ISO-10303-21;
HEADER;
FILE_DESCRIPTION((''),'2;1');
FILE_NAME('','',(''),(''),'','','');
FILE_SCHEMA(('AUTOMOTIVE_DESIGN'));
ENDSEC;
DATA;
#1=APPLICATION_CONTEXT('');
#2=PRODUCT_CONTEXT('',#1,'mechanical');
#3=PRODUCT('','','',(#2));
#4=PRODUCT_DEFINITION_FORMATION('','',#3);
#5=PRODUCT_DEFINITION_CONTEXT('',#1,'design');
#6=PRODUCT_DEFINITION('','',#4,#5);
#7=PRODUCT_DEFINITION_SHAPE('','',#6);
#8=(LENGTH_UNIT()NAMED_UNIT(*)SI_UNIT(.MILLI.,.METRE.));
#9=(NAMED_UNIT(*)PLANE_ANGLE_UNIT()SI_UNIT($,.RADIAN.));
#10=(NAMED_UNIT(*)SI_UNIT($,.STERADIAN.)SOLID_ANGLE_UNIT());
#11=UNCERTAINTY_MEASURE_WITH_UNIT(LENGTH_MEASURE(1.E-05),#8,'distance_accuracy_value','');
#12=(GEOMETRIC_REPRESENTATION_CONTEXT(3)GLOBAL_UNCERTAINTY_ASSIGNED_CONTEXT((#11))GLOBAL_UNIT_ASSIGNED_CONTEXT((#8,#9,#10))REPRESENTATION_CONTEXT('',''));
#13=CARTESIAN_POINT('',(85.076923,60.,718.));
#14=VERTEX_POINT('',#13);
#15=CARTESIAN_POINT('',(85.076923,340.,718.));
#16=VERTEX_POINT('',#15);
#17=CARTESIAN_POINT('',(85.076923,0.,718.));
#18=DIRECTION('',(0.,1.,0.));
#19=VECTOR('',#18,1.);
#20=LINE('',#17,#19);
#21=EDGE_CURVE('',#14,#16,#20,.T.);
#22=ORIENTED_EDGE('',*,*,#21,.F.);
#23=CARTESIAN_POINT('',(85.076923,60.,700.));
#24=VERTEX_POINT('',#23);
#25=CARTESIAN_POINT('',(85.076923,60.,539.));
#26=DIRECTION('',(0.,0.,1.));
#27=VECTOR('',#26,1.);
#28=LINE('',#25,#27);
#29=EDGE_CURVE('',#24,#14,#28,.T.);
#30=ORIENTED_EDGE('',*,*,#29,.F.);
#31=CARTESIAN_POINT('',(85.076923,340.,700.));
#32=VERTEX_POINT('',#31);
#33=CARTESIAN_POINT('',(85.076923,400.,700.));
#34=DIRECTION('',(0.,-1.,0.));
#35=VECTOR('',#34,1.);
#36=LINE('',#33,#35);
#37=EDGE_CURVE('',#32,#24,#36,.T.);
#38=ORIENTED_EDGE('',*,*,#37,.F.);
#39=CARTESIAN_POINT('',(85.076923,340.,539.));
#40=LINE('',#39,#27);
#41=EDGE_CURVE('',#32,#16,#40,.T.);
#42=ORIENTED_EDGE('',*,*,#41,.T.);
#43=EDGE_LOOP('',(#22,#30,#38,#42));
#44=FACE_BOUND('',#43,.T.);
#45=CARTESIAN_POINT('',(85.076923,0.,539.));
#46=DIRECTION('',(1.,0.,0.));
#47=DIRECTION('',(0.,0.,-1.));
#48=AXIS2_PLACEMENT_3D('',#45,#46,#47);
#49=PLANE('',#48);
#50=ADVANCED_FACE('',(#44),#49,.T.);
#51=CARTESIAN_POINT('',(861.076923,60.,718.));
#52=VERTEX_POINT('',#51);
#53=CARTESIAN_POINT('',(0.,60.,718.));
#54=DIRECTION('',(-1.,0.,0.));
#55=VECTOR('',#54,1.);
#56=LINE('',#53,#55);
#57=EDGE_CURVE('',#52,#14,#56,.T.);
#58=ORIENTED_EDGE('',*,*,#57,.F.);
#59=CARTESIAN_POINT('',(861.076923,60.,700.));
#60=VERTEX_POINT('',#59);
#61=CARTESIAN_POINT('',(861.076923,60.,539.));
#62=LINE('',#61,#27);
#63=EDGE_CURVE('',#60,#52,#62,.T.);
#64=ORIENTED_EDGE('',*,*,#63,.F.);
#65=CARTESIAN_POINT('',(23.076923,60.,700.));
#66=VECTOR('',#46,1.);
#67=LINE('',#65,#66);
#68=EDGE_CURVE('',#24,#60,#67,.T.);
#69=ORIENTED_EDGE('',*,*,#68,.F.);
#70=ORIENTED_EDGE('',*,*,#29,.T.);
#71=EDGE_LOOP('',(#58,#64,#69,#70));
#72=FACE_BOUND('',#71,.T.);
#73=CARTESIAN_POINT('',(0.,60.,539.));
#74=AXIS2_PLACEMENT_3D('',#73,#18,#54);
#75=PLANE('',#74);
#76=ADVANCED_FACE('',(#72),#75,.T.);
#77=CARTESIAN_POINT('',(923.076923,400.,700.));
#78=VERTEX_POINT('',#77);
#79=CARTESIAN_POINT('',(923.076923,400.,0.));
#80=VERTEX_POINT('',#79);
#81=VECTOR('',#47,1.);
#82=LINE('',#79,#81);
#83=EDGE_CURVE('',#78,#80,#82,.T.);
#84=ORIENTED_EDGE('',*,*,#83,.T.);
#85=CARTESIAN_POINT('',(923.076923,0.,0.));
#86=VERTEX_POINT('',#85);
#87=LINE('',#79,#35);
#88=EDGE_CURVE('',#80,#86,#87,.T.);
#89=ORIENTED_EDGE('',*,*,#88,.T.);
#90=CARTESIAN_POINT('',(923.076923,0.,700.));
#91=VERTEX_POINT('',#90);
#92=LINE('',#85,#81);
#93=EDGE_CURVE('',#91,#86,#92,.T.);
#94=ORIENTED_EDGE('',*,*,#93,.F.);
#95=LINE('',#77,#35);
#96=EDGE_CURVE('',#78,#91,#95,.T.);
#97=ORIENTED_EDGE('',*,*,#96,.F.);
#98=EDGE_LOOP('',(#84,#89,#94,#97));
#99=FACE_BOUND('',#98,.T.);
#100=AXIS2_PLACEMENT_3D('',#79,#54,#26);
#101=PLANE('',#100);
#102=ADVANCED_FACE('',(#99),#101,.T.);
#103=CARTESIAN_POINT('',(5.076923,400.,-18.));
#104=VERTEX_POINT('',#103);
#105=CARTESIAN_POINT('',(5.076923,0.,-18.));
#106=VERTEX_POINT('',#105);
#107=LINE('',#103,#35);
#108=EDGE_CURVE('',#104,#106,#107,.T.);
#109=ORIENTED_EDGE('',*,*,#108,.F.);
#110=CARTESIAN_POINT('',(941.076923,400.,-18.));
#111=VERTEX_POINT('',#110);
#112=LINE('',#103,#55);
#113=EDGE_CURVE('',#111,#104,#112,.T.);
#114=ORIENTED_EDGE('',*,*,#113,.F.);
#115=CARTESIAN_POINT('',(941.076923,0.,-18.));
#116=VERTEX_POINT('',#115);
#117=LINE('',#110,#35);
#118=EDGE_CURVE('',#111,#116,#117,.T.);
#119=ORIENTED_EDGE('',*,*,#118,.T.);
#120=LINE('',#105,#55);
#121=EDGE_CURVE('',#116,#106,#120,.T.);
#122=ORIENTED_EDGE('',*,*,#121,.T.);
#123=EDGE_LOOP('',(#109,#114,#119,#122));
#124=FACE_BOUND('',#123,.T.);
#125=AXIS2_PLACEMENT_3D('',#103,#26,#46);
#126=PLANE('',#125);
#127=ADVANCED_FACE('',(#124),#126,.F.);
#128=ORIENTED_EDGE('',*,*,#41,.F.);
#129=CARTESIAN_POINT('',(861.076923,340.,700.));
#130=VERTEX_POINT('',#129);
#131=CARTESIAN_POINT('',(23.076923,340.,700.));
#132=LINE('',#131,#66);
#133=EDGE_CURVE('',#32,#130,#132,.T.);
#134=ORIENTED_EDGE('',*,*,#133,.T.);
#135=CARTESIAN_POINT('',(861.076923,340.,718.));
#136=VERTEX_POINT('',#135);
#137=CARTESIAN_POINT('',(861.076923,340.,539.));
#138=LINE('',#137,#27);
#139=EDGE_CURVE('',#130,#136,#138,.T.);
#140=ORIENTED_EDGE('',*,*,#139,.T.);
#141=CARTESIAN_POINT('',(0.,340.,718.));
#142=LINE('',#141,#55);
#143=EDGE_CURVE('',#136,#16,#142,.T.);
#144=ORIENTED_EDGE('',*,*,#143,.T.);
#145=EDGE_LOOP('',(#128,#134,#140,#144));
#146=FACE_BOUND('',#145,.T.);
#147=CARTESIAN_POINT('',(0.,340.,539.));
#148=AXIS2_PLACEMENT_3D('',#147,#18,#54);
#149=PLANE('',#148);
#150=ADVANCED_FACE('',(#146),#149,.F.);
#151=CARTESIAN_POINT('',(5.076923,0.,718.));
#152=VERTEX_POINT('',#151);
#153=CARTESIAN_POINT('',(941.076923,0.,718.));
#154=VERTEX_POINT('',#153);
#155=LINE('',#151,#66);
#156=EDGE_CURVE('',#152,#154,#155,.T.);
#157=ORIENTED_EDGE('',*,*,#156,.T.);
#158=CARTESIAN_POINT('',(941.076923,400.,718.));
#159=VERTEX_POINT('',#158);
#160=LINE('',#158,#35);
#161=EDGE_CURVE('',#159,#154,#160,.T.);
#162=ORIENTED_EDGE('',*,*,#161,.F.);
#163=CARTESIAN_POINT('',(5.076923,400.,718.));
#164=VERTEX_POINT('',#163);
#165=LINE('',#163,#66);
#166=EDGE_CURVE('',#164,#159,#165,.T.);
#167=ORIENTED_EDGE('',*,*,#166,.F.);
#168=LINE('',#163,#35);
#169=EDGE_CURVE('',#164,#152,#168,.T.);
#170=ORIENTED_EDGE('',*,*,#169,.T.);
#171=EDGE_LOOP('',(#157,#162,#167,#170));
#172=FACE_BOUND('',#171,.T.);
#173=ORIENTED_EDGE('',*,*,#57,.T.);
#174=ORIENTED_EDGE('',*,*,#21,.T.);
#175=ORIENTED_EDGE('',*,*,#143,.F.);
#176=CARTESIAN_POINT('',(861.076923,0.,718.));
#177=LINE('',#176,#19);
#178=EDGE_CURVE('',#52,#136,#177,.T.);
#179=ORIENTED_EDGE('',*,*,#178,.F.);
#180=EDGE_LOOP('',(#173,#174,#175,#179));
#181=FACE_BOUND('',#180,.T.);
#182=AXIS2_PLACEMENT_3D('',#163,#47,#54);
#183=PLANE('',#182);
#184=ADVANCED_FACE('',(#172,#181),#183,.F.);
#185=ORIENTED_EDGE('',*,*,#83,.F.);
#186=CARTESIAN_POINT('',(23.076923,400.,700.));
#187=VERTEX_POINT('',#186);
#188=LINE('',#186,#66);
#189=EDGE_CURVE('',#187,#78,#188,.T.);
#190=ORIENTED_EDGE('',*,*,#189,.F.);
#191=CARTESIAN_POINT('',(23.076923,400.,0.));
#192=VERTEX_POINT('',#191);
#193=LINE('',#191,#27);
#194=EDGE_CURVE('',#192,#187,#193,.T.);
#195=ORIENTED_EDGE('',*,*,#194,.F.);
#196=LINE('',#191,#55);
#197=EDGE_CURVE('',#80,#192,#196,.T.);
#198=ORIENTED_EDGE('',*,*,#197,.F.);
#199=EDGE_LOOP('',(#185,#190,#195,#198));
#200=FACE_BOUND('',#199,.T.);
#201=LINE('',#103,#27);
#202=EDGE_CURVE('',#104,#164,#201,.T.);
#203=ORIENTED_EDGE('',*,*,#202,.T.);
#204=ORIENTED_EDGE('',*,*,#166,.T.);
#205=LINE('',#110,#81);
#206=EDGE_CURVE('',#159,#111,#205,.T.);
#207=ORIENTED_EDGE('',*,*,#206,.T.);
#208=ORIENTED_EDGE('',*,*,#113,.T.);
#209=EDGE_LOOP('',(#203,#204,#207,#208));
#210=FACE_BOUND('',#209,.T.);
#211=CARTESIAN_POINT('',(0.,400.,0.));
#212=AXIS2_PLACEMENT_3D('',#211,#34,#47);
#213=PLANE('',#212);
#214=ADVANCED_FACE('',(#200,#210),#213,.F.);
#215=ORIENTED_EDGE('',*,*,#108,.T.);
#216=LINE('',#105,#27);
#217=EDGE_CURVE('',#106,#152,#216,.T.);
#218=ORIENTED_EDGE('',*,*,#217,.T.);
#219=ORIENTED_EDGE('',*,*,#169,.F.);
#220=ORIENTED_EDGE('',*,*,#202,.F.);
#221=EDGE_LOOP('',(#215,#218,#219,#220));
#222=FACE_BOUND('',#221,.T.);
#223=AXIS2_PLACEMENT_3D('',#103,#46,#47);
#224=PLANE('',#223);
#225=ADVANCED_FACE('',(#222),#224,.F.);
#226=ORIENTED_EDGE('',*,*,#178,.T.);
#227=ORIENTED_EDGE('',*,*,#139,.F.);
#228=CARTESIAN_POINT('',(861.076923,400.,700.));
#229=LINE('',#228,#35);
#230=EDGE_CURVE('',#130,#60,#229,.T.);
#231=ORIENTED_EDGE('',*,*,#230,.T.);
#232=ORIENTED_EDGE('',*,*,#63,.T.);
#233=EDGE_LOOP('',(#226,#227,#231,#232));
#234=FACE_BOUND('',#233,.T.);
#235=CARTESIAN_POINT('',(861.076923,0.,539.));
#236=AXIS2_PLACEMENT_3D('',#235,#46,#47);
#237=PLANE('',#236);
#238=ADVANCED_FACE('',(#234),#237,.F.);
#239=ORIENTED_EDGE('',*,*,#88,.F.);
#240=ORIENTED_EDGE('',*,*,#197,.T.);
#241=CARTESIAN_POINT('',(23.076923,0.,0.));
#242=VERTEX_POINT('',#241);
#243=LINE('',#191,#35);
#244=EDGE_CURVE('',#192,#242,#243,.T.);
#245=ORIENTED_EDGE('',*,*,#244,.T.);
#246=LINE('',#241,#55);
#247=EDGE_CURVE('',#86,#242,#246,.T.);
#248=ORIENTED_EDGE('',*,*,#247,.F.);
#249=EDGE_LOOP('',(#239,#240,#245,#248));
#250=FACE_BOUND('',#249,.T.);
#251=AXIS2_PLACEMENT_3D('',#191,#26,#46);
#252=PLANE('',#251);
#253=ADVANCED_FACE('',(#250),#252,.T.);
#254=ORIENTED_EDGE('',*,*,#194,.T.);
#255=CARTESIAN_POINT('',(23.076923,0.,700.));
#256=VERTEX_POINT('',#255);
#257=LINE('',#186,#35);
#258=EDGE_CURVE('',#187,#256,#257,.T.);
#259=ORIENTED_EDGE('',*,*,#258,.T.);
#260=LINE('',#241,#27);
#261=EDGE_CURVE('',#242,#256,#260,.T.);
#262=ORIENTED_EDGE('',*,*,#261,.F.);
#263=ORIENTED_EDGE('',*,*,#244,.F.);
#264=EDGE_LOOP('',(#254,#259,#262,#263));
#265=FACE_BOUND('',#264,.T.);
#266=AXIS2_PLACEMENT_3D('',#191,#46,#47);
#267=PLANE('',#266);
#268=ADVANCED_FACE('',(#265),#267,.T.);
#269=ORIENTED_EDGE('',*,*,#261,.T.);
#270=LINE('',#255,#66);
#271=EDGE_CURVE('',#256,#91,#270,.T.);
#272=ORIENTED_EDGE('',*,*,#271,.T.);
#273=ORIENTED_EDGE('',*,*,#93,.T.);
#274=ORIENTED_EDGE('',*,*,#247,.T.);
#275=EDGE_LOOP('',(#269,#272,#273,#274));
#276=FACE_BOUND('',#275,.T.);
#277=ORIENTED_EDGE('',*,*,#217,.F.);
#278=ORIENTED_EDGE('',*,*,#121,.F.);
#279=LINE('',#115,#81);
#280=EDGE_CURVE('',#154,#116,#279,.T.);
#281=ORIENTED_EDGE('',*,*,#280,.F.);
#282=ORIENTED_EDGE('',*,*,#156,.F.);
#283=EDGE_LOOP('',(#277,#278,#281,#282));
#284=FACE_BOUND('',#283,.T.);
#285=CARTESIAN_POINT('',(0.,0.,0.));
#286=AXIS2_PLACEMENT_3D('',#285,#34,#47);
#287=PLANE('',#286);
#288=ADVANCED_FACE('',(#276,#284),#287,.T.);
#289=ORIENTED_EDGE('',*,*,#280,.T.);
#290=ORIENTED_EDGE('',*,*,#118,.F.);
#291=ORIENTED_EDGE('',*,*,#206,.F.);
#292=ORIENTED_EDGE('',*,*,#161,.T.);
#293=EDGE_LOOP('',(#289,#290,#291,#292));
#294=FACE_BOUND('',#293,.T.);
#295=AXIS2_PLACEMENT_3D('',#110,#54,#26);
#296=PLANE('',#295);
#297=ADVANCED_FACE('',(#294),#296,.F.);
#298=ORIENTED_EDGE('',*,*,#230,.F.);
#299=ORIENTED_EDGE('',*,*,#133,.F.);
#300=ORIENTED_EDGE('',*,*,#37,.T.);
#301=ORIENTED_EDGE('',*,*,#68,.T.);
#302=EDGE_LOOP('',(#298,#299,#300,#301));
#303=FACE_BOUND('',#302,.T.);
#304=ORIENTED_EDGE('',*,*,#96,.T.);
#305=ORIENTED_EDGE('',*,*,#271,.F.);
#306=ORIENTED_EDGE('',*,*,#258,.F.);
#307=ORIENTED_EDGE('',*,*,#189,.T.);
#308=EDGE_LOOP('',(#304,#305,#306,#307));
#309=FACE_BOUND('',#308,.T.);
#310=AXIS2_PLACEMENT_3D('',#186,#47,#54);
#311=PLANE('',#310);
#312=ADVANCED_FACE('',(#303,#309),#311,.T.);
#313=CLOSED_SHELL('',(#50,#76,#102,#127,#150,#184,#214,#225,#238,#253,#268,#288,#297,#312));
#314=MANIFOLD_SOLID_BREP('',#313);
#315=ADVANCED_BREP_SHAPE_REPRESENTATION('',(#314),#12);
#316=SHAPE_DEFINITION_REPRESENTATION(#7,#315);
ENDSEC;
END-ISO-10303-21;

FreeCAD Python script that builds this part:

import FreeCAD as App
import Part
import Sketcher

doc = App.newDocument("Part")
params = doc.addObject("Spreadsheet::Sheet", "Params")
for row, (alias, value) in enumerate([
    ("sketch1_width", "936 mm"),
    ("sketch1_width2", "900 mm"),
    ("sketch1_height", "736 mm"),
    ("sketch1_height2", "700 mm"),
    ("pad1_length", "400 mm"),
    ("sketch2_width", "776 mm"),
    ("sketch2_height", "280 mm"),
    ("pocket1_length", "179 mm"),
], start=1):
    params.set(f"A{row}", alias)
    params.set(f"B{row}", "=" + value)
    params.setAlias(f"B{row}", alias)

body = doc.addObject("PartDesign::Body", "Body")

sketch1 = body.newObject("Sketcher::SketchObject", "Sketch")
sketch1.AttachmentSupport = (doc.getObject("XZ_Plane"), [""])
sketch1.MapMode = "FlatFace"
sketch1.addGeometry(Part.LineSegment(App.Vector(5, -18, 0), App.Vector(5, 718, 0)), False)
sketch1.addGeometry(Part.LineSegment(App.Vector(5, 718, 0), App.Vector(941, 718, 0)), False)
sketch1.addGeometry(Part.LineSegment(App.Vector(941, 718, 0), App.Vector(941, -18, 0)), False)
sketch1.addGeometry(Part.LineSegment(App.Vector(941, -18, 0), App.Vector(5, -18, 0)), False)
sketch1.addGeometry(Part.LineSegment(App.Vector(923, 700, 0), App.Vector(23, 700, 0)), False)
sketch1.addGeometry(Part.LineSegment(App.Vector(23, 700, 0), App.Vector(23, 0, 0)), False)
sketch1.addGeometry(Part.LineSegment(App.Vector(23, 0, 0), App.Vector(923, 0, 0)), False)
sketch1.addGeometry(Part.LineSegment(App.Vector(923, 0, 0), App.Vector(923, 700, 0)), False)
sketch1.addConstraint(Sketcher.Constraint("Coincident", 0, 2, 1, 1))
sketch1.addConstraint(Sketcher.Constraint("Coincident", 1, 2, 2, 1))
sketch1.addConstraint(Sketcher.Constraint("Coincident", 2, 2, 3, 1))
sketch1.addConstraint(Sketcher.Constraint("Coincident", 3, 2, 0, 1))
sketch1.addConstraint(Sketcher.Constraint("Coincident", 4, 2, 5, 1))
sketch1.addConstraint(Sketcher.Constraint("Coincident", 5, 2, 6, 1))
sketch1.addConstraint(Sketcher.Constraint("Coincident", 6, 2, 7, 1))
sketch1.addConstraint(Sketcher.Constraint("Coincident", 7, 2, 4, 1))
sketch1.addConstraint(Sketcher.Constraint("Vertical", 0))
sketch1.addConstraint(Sketcher.Constraint("Horizontal", 1))
sketch1.addConstraint(Sketcher.Constraint("Vertical", 2))
sketch1.addConstraint(Sketcher.Constraint("Horizontal", 3))
sketch1.addConstraint(Sketcher.Constraint("Horizontal", 4))
sketch1.addConstraint(Sketcher.Constraint("Vertical", 5))
sketch1.addConstraint(Sketcher.Constraint("Horizontal", 6))
sketch1.addConstraint(Sketcher.Constraint("Vertical", 7))
sketch1.addConstraint(Sketcher.Constraint("PointOnObject", 5, 2, -1))
sketch1.addConstraint(Sketcher.Constraint("DistanceX", 1, 1, 1, 2, 936.0))
sketch1.addConstraint(Sketcher.Constraint("DistanceX", 4, 2, 4, 1, 900.0))
sketch1.addConstraint(Sketcher.Constraint("DistanceY", 0, 1, 0, 2, 736.0))
sketch1.addConstraint(Sketcher.Constraint("DistanceY", 5, 2, 5, 1, 700.0))
sketch1.addConstraint(Sketcher.Constraint("DistanceY", -1, 1, 0, 2, 718.0))
sketch1.addConstraint(Sketcher.Constraint("DistanceX", 0, 2, 4, 2, 18.0))
sketch1.addConstraint(Sketcher.Constraint("DistanceX", -1, 1, 0, 2, 5.076923))
sketch1.setExpression("Constraints[17]", "Params.sketch1_width")
sketch1.setExpression("Constraints[18]", "Params.sketch1_width2")
sketch1.setExpression("Constraints[19]", "Params.sketch1_height")
sketch1.setExpression("Constraints[20]", "Params.sketch1_height2")
pad1 = body.newObject("PartDesign::Pad", "Pad")
pad1.Profile = sketch1
pad1.setExpression("Length", "Params.pad1_length")
pad1.Reversed = True

sketch2 = body.newObject("Sketcher::SketchObject", "Sketch001")
sketch2.AttachmentSupport = (doc.getObject("XY_Plane"), [""])
sketch2.MapMode = "FlatFace"
sketch2.AttachmentOffset = App.Placement(App.Vector(0, 0, 718), App.Rotation())
sketch2.addGeometry(Part.LineSegment(App.Vector(85, 340, 0), App.Vector(85, 60, 0)), False)
sketch2.addGeometry(Part.LineSegment(App.Vector(85, 60, 0), App.Vector(861, 60, 0)), False)
sketch2.addGeometry(Part.LineSegment(App.Vector(861, 60, 0), App.Vector(861, 340, 0)), False)
sketch2.addGeometry(Part.LineSegment(App.Vector(861, 340, 0), App.Vector(85, 340, 0)), False)
sketch2.addConstraint(Sketcher.Constraint("Coincident", 0, 2, 1, 1))
sketch2.addConstraint(Sketcher.Constraint("Coincident", 1, 2, 2, 1))
sketch2.addConstraint(Sketcher.Constraint("Coincident", 2, 2, 3, 1))
sketch2.addConstraint(Sketcher.Constraint("Coincident", 3, 2, 0, 1))
sketch2.addConstraint(Sketcher.Constraint("Vertical", 0))
sketch2.addConstraint(Sketcher.Constraint("Horizontal", 1))
sketch2.addConstraint(Sketcher.Constraint("Vertical", 2))
sketch2.addConstraint(Sketcher.Constraint("Horizontal", 3))
sketch2.addConstraint(Sketcher.Constraint("DistanceX", 1, 1, 1, 2, 776.0))
sketch2.addConstraint(Sketcher.Constraint("DistanceY", 0, 2, 0, 1, 280.0))
sketch2.addConstraint(Sketcher.Constraint("DistanceY", -1, 1, 0, 2, 60.0))
sketch2.addConstraint(Sketcher.Constraint("DistanceX", -1, 1, 0, 2, 85.076923))
sketch2.setExpression("Constraints[8]", "Params.sketch2_width")
sketch2.setExpression("Constraints[9]", "Params.sketch2_height")
pocket1 = body.newObject("PartDesign::Pocket", "Pocket")
pocket1.Profile = sketch2
pocket1.setExpression("Length", "Params.pocket1_length")

doc.recompute()
